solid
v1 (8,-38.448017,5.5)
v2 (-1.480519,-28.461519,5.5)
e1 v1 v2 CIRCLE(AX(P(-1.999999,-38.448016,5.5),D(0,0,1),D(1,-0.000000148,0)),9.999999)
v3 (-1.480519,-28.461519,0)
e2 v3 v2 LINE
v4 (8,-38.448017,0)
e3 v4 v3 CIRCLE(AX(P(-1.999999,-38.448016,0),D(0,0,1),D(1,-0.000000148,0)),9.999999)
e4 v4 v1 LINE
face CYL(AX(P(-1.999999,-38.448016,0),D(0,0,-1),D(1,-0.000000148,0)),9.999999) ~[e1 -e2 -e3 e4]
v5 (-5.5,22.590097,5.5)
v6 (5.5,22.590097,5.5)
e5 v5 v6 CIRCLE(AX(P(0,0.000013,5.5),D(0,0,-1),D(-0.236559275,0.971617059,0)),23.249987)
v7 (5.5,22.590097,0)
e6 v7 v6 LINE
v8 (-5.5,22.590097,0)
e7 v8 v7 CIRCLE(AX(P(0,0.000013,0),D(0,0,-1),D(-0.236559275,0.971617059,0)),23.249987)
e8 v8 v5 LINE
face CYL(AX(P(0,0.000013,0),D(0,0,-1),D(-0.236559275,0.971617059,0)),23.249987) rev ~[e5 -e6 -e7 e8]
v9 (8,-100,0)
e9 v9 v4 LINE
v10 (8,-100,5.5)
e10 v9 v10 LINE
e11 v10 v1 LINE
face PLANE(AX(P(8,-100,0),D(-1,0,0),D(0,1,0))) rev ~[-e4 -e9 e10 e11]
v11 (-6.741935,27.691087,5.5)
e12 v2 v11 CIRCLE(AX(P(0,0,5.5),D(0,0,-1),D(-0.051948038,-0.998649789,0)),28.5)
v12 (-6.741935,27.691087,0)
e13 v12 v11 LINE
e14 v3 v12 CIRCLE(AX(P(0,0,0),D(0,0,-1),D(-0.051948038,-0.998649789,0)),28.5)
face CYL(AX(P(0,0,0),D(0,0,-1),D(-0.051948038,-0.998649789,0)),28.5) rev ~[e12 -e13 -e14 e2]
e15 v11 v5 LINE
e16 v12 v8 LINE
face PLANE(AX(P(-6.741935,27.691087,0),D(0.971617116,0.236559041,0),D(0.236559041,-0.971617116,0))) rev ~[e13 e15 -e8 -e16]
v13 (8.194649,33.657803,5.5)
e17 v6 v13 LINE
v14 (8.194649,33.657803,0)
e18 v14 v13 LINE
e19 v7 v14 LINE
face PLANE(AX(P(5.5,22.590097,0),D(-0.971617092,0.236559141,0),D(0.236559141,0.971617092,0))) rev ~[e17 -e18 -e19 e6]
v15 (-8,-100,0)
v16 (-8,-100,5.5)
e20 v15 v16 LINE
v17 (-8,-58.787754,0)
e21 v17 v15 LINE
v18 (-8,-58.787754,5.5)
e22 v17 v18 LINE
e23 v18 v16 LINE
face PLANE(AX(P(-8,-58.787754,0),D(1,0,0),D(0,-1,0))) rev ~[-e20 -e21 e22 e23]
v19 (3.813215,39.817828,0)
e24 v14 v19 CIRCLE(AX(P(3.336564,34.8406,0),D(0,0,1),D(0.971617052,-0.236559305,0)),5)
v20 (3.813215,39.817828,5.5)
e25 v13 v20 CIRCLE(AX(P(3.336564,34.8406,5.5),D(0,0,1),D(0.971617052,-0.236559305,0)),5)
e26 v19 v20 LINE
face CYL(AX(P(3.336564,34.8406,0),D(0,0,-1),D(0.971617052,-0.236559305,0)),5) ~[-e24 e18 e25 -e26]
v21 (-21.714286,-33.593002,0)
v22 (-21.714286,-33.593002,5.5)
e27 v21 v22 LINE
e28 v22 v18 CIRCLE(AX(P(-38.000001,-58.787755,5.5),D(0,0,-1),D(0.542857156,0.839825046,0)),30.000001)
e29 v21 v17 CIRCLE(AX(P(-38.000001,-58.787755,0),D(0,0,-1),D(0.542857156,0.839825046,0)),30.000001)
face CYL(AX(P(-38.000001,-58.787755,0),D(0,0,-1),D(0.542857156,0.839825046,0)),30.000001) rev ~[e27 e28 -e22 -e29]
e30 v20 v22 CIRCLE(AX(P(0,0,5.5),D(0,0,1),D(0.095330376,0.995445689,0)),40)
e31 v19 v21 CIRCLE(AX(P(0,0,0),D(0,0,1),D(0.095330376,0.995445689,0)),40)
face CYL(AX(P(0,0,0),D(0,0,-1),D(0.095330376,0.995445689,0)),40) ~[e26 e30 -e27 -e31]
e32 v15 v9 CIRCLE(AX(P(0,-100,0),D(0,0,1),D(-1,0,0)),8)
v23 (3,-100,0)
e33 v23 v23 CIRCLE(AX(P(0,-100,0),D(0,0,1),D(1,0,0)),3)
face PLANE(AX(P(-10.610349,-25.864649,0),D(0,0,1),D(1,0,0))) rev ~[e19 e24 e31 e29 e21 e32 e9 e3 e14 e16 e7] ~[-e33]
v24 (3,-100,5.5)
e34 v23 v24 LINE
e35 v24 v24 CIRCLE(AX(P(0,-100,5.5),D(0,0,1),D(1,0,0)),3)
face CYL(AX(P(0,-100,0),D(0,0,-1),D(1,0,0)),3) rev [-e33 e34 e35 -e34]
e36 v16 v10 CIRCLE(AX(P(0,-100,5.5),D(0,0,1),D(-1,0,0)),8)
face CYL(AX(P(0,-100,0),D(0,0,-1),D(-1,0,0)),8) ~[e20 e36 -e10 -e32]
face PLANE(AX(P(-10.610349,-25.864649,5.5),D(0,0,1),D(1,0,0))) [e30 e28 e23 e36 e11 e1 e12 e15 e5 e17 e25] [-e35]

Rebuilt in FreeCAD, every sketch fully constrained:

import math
import FreeCAD as App
import Part
import Sketcher

V = App.Vector
Q = App.Units.Quantity

doc = App.newDocument("Part")
body = doc.addObject("PartDesign::Body", "Body")

sketch1 = body.newObject("Sketcher::SketchObject", "Sketch")
sketch1.AttachmentSupport = (doc.getObject("XY_Plane"), [""])
sketch1.MapMode = "FlatFace"
sketch1.addGeometry(Part.LineSegment(V(-8, -58.8, 0), V(-8, -100, 0)), False)
sketch1.addGeometry(Part.ArcOfCircle(Part.Circle(V(0, -100, 0), V(0, 0, 1), 8), math.radians(180), math.radians(360)), False)
sketch1.addGeometry(Part.LineSegment(V(8, -100, 0), V(8, -38.4, 0)), False)
sketch1.addGeometry(Part.ArcOfCircle(Part.Circle(V(-2, -38.4, 0), V(0, 0, 1), 10), math.radians(0), math.radians(87)), False)
sketch1.addGeometry(Part.ArcOfCircle(Part.Circle(V(0, 0, 0), V(0, 0, 1), 28.5), math.radians(104), math.radians(267)), False)
sketch1.addGeometry(Part.LineSegment(V(-6.7, 27.7, 0), V(-5.5, 22.6, 0)), False)
sketch1.addGeometry(Part.ArcOfCircle(Part.Circle(V(0, 0, 0), V(0, 0, 1), 23.2), math.radians(76), math.radians(104)), False)
sketch1.addGeometry(Part.LineSegment(V(5.5, 22.6, 0), V(8.2, 33.7, 0)), False)
sketch1.addGeometry(Part.ArcOfCircle(Part.Circle(V(3.3, 34.8, 0), V(0, 0, 1), 5), math.radians(-14), math.radians(85)), False)
sketch1.addGeometry(Part.ArcOfCircle(Part.Circle(V(0, 0, 0), V(0, 0, 1), 40), math.radians(85), math.radians(237)), False)
sketch1.addGeometry(Part.ArcOfCircle(Part.Circle(V(-38, -58.8, 0), V(0, 0, 1), 30), math.radians(0), math.radians(57)), False)
sketch1.addGeometry(Part.Circle(V(0, -100, 0), V(0, 0, 1), 3), False)
sketch1.addConstraint(Sketcher.Constraint("Tangent", 0, 2, 1, 1))
sketch1.addConstraint(Sketcher.Constraint("Tangent", 1, 2, 2, 1))
sketch1.addConstraint(Sketcher.Constraint("Tangent", 2, 2, 3, 1))
sketch1.addConstraint(Sketcher.Constraint("Tangent", 3, 2, 4, 2))
sketch1.addConstraint(Sketcher.Constraint("Coincident", 4, 1, 5, 1))
sketch1.addConstraint(Sketcher.Constraint("Coincident", 5, 2, 6, 2))
sketch1.addConstraint(Sketcher.Constraint("Coincident", 6, 1, 7, 1))
sketch1.addConstraint(Sketcher.Constraint("Tangent", 7, 2, 8, 1))
sketch1.addConstraint(Sketcher.Constraint("Tangent", 8, 2, 9, 1))
sketch1.addConstraint(Sketcher.Constraint("Tangent", 9, 2, 10, 2))
sketch1.addConstraint(Sketcher.Constraint("Tangent", 10, 1, 0, 1))
sketch1.addConstraint(Sketcher.Constraint("Vertical", 0))
sketch1.addConstraint(Sketcher.Constraint("Vertical", 2))
sketch1.addConstraint(Sketcher.Constraint("Coincident", 4, 3, -1, 1))
sketch1.addConstraint(Sketcher.Constraint("Coincident", 9, 3, -1, 1))
sketch1.addConstraint(Sketcher.Constraint("Coincident", 11, 3, 1, 3))
sketch1.addConstraint(Sketcher.Constraint("Symmetric", 5, 2, 6, 1, -2))
sketch1.addConstraint(Sketcher.Constraint("PointOnObject", 1, 3, -2))
sketch1.addConstraint(Sketcher.Constraint("Diameter", 11, Q("6 mm")))
sketch1.addConstraint(Sketcher.Constraint("Radius", 1, Q("8 mm")))
sketch1.addConstraint(Sketcher.Constraint("Radius", 3, Q("9.999999 mm")))
sketch1.addConstraint(Sketcher.Constraint("Radius", 8, Q("5 mm")))
sketch1.addConstraint(Sketcher.Constraint("Radius", 9, Q("40 mm")))
sketch1.addConstraint(Sketcher.Constraint("Radius", 10, Q("30.000001 mm")))
sketch1.addConstraint(Sketcher.Constraint("Radius", 4, Q("28.5 mm")))
sketch1.addConstraint(Sketcher.Constraint("DistanceY", 1, 3, -1, 1, Q("100 mm")))
sketch1.addConstraint(Sketcher.Constraint("DistanceX", 5, 2, 6, 1, Q("11 mm")))
sketch1.addConstraint(Sketcher.Constraint("Distance", 5, Q("5.25 mm")))
sketch1.addConstraint(Sketcher.Constraint("Radius", 6, Q("23.249987 mm")))
sketch1.addConstraint(Sketcher.Constraint("DistanceY", -1, 1, 8, 3, Q("34.8406 mm")))
sketch1.addConstraint(Sketcher.Constraint("DistanceX", 4, 1, 8, 3, Q("10.078499 mm")))
pad1 = body.newObject("PartDesign::Pad", "Pad")
pad1.Profile = sketch1
pad1.Length = 5.5

doc.recompute()
